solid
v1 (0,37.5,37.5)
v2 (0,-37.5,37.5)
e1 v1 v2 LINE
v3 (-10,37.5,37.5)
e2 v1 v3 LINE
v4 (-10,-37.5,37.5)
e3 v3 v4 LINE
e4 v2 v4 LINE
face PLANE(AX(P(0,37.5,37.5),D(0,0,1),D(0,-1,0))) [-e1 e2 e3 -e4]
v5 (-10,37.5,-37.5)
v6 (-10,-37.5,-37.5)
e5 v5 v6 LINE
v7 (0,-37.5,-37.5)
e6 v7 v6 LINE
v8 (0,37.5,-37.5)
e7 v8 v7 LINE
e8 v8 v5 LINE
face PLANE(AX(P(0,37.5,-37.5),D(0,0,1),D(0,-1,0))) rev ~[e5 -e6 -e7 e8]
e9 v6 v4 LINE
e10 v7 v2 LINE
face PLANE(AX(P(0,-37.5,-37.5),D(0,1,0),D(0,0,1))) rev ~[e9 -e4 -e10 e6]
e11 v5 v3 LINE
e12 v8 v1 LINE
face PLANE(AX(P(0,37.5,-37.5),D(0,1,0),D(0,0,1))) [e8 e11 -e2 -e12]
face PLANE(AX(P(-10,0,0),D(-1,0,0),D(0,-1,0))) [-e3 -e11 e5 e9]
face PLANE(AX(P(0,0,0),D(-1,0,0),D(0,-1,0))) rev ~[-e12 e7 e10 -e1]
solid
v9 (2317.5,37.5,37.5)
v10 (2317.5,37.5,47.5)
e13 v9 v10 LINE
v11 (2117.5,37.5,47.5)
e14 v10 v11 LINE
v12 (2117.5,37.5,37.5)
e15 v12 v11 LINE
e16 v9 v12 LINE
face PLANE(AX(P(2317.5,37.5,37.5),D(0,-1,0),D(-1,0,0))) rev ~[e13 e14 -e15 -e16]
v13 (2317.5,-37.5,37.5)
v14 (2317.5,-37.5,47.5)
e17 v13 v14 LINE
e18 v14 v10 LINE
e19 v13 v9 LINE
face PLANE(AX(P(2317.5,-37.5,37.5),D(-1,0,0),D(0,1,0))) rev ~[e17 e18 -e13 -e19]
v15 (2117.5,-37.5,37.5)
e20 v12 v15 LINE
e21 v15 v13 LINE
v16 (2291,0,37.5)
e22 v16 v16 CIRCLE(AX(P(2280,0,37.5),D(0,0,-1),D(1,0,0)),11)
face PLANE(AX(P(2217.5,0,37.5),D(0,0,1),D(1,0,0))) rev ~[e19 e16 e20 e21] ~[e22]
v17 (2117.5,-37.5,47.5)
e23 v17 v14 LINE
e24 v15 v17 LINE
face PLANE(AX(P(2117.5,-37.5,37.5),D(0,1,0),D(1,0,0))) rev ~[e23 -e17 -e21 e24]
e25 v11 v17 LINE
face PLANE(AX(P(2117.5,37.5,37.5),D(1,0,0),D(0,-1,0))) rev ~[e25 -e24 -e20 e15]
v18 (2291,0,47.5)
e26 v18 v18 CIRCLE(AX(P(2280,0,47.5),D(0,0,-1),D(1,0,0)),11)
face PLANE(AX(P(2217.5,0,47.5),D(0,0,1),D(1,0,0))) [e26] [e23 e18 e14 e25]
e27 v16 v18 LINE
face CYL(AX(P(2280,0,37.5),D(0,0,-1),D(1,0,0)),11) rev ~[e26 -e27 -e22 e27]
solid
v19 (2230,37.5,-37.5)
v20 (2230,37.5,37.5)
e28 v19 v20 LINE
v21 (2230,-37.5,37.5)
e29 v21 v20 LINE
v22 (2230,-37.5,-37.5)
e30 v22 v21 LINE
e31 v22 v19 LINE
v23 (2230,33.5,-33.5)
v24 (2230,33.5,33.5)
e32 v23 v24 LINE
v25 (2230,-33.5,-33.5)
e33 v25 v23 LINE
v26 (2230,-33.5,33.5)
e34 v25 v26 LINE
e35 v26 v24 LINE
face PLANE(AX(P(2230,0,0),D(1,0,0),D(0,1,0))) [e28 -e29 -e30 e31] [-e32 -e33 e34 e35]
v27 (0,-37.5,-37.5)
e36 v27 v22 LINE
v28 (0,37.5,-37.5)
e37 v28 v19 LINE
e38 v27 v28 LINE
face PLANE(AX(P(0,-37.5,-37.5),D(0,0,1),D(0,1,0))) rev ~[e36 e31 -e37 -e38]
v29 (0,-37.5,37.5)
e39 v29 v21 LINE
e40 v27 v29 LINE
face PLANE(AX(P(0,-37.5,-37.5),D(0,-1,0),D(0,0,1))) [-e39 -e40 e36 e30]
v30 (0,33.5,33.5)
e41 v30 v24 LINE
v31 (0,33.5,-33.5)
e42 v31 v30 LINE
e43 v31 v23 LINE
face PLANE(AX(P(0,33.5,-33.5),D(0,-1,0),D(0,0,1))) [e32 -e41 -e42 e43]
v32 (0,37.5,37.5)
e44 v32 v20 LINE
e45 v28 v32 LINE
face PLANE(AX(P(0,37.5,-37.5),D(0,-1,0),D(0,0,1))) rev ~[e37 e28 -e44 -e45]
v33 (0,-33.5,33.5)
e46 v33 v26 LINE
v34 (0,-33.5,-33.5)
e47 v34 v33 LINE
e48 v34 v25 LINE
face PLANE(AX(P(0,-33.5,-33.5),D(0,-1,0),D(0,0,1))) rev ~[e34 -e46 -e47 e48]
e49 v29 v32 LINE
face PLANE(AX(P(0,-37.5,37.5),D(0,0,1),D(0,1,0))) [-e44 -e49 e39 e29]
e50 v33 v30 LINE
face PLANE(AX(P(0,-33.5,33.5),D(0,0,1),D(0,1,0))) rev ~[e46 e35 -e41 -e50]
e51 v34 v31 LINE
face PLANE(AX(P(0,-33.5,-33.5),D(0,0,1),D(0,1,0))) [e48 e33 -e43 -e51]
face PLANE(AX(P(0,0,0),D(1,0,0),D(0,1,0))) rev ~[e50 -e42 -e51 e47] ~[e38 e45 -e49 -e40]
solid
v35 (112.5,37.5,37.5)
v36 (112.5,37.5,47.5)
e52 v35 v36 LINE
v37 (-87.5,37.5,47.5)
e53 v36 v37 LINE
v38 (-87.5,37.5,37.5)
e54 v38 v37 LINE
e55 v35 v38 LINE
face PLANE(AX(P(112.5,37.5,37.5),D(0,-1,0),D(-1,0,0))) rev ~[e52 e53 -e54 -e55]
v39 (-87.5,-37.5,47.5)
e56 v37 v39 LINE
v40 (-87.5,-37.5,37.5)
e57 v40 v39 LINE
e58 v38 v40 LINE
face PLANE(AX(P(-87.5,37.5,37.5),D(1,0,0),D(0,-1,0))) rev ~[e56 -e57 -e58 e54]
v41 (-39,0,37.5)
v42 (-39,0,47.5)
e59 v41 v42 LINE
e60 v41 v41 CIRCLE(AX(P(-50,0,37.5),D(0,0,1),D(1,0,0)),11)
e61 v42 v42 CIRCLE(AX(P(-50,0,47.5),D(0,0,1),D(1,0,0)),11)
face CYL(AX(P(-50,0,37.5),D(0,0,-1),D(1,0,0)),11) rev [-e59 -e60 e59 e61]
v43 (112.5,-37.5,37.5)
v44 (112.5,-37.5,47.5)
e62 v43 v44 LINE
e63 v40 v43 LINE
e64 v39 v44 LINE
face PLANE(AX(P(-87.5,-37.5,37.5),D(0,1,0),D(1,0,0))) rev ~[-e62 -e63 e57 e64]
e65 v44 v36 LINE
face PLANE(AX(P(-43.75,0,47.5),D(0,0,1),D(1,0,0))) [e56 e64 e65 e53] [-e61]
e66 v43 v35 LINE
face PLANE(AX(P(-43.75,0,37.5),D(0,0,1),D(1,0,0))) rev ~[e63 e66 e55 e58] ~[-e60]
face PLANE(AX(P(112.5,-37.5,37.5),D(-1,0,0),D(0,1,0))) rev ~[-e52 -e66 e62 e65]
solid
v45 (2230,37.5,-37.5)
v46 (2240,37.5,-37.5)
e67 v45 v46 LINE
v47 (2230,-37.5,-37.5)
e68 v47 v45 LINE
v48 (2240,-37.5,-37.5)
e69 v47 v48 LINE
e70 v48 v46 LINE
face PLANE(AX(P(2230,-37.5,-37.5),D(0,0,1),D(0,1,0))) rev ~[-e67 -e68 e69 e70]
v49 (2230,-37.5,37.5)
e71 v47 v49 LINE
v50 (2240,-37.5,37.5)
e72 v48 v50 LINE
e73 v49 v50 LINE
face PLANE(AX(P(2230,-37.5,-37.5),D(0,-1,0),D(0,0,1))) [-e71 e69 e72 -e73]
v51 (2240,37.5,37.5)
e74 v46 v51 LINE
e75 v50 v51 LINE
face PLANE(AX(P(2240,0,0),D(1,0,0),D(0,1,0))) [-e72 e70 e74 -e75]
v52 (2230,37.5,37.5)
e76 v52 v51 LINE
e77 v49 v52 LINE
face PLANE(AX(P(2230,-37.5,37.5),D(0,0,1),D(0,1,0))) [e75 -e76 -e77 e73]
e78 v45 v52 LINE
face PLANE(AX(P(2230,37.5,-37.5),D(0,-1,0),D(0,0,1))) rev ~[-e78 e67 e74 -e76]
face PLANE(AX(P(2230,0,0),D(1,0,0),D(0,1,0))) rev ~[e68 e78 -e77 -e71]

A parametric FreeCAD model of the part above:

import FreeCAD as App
import Part
import Sketcher

V = App.Vector
Q = App.Units.Quantity


def add_polygon(sketch, points):
    """Adds a closed chain of lines whose ends are joined by coincident constraints."""
    first, n = sketch.GeometryCount, len(points)
    for a, b in zip(points, points[1:] + points[:1]):
        sketch.addGeometry(Part.LineSegment(App.Vector(*a, 0), App.Vector(*b, 0)), False)
    for i in range(n):
        sketch.addConstraint(Sketcher.Constraint("Coincident", first + i, 2, first + (i + 1) % n, 1))

doc = App.newDocument("Part")
body = doc.addObject("PartDesign::Body", "Body")

# Sketch on YZ plane
sketch1 = body.newObject("Sketcher::SketchObject", "Sketch")
sketch1.AttachmentSupport = (doc.getObject("YZ_Plane"), [""])
sketch1.MapMode = "FlatFace"
add_polygon(sketch1, [(-38, 38), (-38, -38), (38, -38), (38, 38)])  # lines 0-3
add_polygon(sketch1, [(34, -34), (-34, -34), (-34, 34), (34, 34)])  # lines 4-7
sketch1.addConstraint([
    Sketcher.Constraint("Vertical", 0),
    Sketcher.Constraint("Horizontal", 1),
    Sketcher.Constraint("Vertical", 2),
    Sketcher.Constraint("Horizontal", 3),
    Sketcher.Constraint("Horizontal", 4),
    Sketcher.Constraint("Vertical", 5),
    Sketcher.Constraint("Horizontal", 6),
    Sketcher.Constraint("Vertical", 7),
    Sketcher.Constraint("Symmetric", 0, 2, 2, 2, -1, 1),
    Sketcher.Constraint("Symmetric", 4, 2, 6, 2, -1, 1),
    Sketcher.Constraint("Equal", 3, 0),
    Sketcher.Constraint("Equal", 6, 5),
    Sketcher.Constraint("DistanceX", 1, 1, 1, 2, Q("75 mm")),
    Sketcher.Constraint("DistanceX", 4, 2, 4, 1, Q("67 mm")),
])
pad1 = body.newObject("PartDesign::Pad", "Pad")
pad1.Profile = sketch1
pad1.Length = 2230
body2 = doc.addObject("PartDesign::Body", "Body001")

# Sketch on YZ plane
sketch2 = body2.newObject("Sketcher::SketchObject", "Sketch001")
sketch2.AttachmentSupport = (doc.getObject("YZ_Plane001"), [""])
sketch2.MapMode = "FlatFace"
sketch2.AttachmentOffset = App.Placement(V(0, 0, 2230), App.Rotation())
add_polygon(sketch2, [(-38, 38), (-38, -38), (38, -38), (38, 38)])  # lines 0-3
sketch2.addConstraint([
    Sketcher.Constraint("Vertical", 0),
    Sketcher.Constraint("Horizontal", 1),
    Sketcher.Constraint("Vertical", 2),
    Sketcher.Constraint("Horizontal", 3),
    Sketcher.Constraint("Symmetric", 0, 2, 2, 2, -1, 1),
    Sketcher.Constraint("Equal", 3, 0),
    Sketcher.Constraint("DistanceX", 1, 1, 1, 2, Q("75 mm")),
])
pad2 = body2.newObject("PartDesign::Pad", "Pad001")
pad2.Profile = sketch2
pad2.Length = 10
body3 = doc.addObject("PartDesign::Body", "Body002")

# Sketch on YZ plane
sketch3 = body3.newObject("Sketcher::SketchObject", "Sketch002")
sketch3.AttachmentSupport = (doc.getObject("YZ_Plane002"), [""])
sketch3.MapMode = "FlatFace"
add_polygon(sketch3, [(38, 38), (38, -38), (-38, -38), (-38, 38)])  # lines 0-3
sketch3.addConstraint([
    Sketcher.Constraint("Vertical", 0),
    Sketcher.Constraint("Horizontal", 1),
    Sketcher.Constraint("Vertical", 2),
    Sketcher.Constraint("Horizontal", 3),
    Sketcher.Constraint("Symmetric", 0, 2, 2, 2, -1, 1),
    Sketcher.Constraint("Equal", 3, 0),
    Sketcher.Constraint("DistanceX", 1, 2, 1, 1, Q("75 mm")),
])
pad3 = body3.newObject("PartDesign::Pad", "Pad002")
pad3.Profile = sketch3
pad3.Length = 10
pad3.Reversed = True
body4 = doc.addObject("PartDesign::Body", "Body003")

# Sketch on XY plane
sketch4 = body4.newObject("Sketcher::SketchObject", "Sketch003")
sketch4.AttachmentSupport = (doc.getObject("XY_Plane003"), [""])
sketch4.MapMode = "FlatFace"
sketch4.AttachmentOffset = App.Placement(V(0, 0, 37.5), App.Rotation())
add_polygon(sketch4, [(-88, -38), (112, -38), (112, 38), (-88, 38)])  # lines 0-3
sketch4.addGeometry(Part.Circle(V(-50, 0, 0), V(0, 0, 1), 11), False)  # 4
sketch4.addConstraint([
    Sketcher.Constraint("Horizontal", 0),
    Sketcher.Constraint("Vertical", 1),
    Sketcher.Constraint("Horizontal", 2),
    Sketcher.Constraint("Vertical", 3),
    Sketcher.Constraint("PointOnObject", 4, 3, -1),
    Sketcher.Constraint("Diameter", 4, Q("22 mm")),
    Sketcher.Constraint("DistanceX", 0, 1, 0, 2, Q("200 mm")),
    Sketcher.Constraint("DistanceY", 1, 1, 1, 2, Q("75 mm")),
    Sketcher.Constraint("DistanceX", 4, 3, -1, 1, Q("50 mm")),
    Sketcher.Constraint("DistanceX", -1, 1, 0, 2, Q("112.5 mm")),
    Sketcher.Constraint("DistanceY", 0, 2, -1, 1, Q("37.5 mm")),
])
pad4 = body4.newObject("PartDesign::Pad", "Pad003")
pad4.Profile = sketch4
pad4.Length = 10
body5 = doc.addObject("PartDesign::Body", "Body004")

# Sketch on XY plane
sketch5 = body5.newObject("Sketcher::SketchObject", "Sketch004")
sketch5.AttachmentSupport = (doc.getObject("XY_Plane004"), [""])
sketch5.MapMode = "FlatFace"
sketch5.AttachmentOffset = App.Placement(V(0, 0, 37.5), App.Rotation())
add_polygon(sketch5, [(2118, -38), (2318, -38), (2318, 38), (2118, 38)])  # lines 0-3
sketch5.addGeometry(Part.Circle(V(2280, 0, 0), V(0, 0, 1), 11), False)  # 4
sketch5.addConstraint([
    Sketcher.Constraint("Horizontal", 0),
    Sketcher.Constraint("Vertical", 1),
    Sketcher.Constraint("Horizontal", 2),
    Sketcher.Constraint("Vertical", 3),
    Sketcher.Constraint("PointOnObject", 4, 3, -1),
    Sketcher.Constraint("Diameter", 4, Q("22 mm")),
    Sketcher.Constraint("DistanceX", 0, 1, 0, 2, Q("200 mm")),
    Sketcher.Constraint("DistanceY", 1, 1, 1, 2, Q("75 mm")),
    Sketcher.Constraint("DistanceX", -1, 1, 4, 3, Q("2280 mm")),
    Sketcher.Constraint("DistanceX", -1, 1, 0, 2, Q("2317.5 mm")),
    Sketcher.Constraint("DistanceY", 0, 2, -1, 1, Q("37.5 mm")),
])
pad5 = body5.newObject("PartDesign::Pad", "Pad004")
pad5.Profile = sketch5
pad5.Length = 10

doc.recompute()
